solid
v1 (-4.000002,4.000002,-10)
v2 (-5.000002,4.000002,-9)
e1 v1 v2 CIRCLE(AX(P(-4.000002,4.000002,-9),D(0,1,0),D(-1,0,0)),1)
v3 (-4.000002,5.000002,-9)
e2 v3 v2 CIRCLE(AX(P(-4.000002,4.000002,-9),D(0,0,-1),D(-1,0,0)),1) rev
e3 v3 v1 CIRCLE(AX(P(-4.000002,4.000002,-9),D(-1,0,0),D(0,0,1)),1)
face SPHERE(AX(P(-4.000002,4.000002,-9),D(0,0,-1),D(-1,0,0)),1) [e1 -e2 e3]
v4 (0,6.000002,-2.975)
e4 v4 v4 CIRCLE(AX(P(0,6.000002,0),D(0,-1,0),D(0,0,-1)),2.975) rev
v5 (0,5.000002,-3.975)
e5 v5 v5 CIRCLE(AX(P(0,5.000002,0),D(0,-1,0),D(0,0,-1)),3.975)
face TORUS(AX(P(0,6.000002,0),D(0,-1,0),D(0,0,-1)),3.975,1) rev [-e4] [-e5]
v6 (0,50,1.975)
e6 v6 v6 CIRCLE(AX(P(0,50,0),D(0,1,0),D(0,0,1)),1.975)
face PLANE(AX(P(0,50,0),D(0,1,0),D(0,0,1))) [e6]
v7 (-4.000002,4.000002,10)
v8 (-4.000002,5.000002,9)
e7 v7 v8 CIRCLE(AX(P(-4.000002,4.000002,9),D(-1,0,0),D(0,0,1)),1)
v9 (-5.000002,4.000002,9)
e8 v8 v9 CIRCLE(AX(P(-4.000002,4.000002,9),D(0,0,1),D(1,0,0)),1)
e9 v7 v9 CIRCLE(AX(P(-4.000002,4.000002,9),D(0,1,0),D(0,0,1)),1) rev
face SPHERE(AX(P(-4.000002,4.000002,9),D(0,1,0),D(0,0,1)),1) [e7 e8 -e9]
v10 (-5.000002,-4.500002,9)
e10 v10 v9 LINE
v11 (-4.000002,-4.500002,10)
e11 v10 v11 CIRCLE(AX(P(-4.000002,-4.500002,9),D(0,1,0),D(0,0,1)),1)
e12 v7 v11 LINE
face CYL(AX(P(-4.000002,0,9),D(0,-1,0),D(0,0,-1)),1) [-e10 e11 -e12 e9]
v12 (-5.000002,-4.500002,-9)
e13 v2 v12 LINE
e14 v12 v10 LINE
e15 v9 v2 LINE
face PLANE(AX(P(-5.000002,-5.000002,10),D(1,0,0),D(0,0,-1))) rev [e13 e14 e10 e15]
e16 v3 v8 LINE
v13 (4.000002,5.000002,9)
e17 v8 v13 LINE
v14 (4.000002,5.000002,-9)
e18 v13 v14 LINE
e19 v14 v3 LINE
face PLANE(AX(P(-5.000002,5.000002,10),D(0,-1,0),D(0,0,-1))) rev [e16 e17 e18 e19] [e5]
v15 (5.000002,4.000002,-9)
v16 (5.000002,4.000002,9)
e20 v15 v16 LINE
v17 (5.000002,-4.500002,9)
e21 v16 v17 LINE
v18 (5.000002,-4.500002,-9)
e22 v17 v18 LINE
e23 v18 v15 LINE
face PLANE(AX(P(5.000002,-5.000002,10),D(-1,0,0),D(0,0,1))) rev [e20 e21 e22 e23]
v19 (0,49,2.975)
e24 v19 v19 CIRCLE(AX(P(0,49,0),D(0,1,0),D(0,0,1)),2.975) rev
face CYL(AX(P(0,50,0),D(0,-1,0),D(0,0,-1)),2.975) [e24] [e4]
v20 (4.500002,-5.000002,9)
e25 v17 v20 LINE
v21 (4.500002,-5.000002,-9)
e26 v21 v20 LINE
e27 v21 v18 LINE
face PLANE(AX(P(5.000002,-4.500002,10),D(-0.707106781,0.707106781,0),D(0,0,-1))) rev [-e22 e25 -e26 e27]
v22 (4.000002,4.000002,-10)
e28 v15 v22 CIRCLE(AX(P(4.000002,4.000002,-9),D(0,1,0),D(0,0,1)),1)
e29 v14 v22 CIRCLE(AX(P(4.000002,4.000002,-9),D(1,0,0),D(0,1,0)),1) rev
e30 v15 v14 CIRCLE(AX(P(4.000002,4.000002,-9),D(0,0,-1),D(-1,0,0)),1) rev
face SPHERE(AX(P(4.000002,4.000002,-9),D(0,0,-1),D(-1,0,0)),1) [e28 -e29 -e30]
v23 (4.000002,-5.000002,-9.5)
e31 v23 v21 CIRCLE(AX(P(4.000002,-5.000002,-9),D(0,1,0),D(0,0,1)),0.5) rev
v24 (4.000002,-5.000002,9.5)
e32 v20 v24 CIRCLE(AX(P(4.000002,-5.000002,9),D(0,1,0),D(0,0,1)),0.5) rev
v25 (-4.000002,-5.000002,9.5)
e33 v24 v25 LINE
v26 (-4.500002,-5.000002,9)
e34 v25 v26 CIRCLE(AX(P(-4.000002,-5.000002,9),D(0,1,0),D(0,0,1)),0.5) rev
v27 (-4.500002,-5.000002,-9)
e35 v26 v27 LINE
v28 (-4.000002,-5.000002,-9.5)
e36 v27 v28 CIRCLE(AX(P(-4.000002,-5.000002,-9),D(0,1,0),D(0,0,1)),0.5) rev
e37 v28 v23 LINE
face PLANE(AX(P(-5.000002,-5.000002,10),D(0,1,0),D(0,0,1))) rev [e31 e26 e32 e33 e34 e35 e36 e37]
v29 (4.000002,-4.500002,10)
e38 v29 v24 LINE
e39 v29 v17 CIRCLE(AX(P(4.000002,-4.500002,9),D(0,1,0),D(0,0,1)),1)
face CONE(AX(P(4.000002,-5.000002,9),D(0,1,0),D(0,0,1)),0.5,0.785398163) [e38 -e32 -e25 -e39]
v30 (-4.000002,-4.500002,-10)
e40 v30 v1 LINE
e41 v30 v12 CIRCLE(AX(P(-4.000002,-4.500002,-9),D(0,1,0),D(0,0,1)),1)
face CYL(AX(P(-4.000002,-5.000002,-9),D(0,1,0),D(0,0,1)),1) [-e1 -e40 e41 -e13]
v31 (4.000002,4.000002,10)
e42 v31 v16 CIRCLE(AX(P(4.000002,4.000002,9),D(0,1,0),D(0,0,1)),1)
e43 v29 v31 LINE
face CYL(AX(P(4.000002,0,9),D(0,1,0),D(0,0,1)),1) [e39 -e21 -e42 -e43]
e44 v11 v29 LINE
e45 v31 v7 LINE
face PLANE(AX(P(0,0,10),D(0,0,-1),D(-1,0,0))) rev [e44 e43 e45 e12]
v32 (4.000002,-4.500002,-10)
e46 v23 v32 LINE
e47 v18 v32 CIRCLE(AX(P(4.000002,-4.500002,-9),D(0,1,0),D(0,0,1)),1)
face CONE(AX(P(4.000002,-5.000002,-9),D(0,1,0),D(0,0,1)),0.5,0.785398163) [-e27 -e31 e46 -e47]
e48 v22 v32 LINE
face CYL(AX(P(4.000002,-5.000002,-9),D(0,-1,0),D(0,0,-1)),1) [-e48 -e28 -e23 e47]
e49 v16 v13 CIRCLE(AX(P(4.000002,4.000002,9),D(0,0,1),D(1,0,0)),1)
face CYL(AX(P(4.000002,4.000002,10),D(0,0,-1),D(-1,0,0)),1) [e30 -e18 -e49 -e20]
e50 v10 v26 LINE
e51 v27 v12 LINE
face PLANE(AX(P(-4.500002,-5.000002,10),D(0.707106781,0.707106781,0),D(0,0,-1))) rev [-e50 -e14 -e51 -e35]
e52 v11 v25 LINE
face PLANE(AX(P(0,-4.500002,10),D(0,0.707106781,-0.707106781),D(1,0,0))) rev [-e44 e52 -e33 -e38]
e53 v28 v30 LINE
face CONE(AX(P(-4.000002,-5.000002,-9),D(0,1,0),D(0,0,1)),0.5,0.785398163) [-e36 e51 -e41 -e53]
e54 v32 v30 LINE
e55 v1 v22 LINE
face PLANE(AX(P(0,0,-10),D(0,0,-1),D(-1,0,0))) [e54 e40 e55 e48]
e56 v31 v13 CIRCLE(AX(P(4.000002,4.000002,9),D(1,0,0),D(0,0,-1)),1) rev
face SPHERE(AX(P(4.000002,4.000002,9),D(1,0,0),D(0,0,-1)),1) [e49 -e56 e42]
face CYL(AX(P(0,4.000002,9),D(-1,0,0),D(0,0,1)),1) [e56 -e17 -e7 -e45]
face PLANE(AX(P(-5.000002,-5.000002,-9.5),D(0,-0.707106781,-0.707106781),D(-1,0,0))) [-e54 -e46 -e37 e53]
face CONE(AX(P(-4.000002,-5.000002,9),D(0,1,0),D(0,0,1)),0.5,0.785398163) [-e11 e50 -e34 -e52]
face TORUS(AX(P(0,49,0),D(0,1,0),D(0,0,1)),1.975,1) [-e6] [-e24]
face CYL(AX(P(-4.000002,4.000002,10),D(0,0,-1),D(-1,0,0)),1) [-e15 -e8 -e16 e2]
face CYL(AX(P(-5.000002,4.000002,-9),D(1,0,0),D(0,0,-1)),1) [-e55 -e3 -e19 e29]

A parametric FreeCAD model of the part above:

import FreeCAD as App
import Part
import Sketcher

V = App.Vector
Q = App.Units.Quantity


def edges_at(feature, points):
    """Names of the edges that pass closest to the given points."""
    edges = feature.Shape.Edges
    near = lambda p: min(range(len(edges)), key=lambda i: edges[i].distToShape(Part.Vertex(*p))[0])
    return sorted({f"Edge{near(p) + 1}" for p in points})

doc = App.newDocument("Part")
params = doc.addObject("Spreadsheet::Sheet", "Params")
for row, (alias, value) in enumerate([
    ("sketch1_diameter", "5.95 mm"),
    ("pad1_length", "50 mm"),
    ("pad2_length", "20 mm"),
    ("fillet_radius", "1 mm"),
    ("chamfer_size", "0.5 mm"),
], start=1):
    params.set(f"A{row}", alias)
    params.set(f"B{row}", "=" + value)
    params.setAlias(f"B{row}", alias)

body = doc.addObject("PartDesign::Body", "Body")

sketch1 = body.newObject("Sketcher::SketchObject", "Sketch")
sketch1.AttachmentSupport = (doc.getObject("XZ_Plane"), [""])
sketch1.MapMode = "FlatFace"
sketch1.addGeometry(Part.Circle(V(0, 0, 0), V(0, 0, 1), 3), False)
sketch1.addConstraint(Sketcher.Constraint("Coincident", 0, 3, -1, 1))
sketch1.addConstraint(Sketcher.Constraint("Diameter", 0, Q("5.95 mm")))
sketch1.setExpression("Constraints[1]", "Params.sketch1_diameter")
pad1 = body.newObject("PartDesign::Pad", "Pad")
pad1.Profile = sketch1
pad1.setExpression("Length", "Params.pad1_length")
pad1.Reversed = True

sketch2 = body.newObject("Sketcher::SketchObject", "Sketch001")
sketch2.AttachmentSupport = (doc.getObject("XY_Plane"), [""])
sketch2.MapMode = "FlatFace"
sketch2.addGeometry(Part.LineSegment(V(-5, 5, 0), V(-5, -5, 0)), False)
sketch2.addGeometry(Part.LineSegment(V(-5, -5, 0), V(5, -5, 0)), False)
sketch2.addGeometry(Part.LineSegment(V(5, -5, 0), V(5, 5, 0)), False)
sketch2.addGeometry(Part.LineSegment(V(5, 5, 0), V(-5, 5, 0)), False)
sketch2.addConstraint(Sketcher.Constraint("Coincident", 0, 2, 1, 1))
sketch2.addConstraint(Sketcher.Constraint("Coincident", 1, 2, 2, 1))
sketch2.addConstraint(Sketcher.Constraint("Coincident", 2, 2, 3, 1))
sketch2.addConstraint(Sketcher.Constraint("Coincident", 3, 2, 0, 1))
sketch2.addConstraint(Sketcher.Constraint("Vertical", 0))
sketch2.addConstraint(Sketcher.Constraint("Horizontal", 1))
sketch2.addConstraint(Sketcher.Constraint("Vertical", 2))
sketch2.addConstraint(Sketcher.Constraint("Horizontal", 3))
sketch2.addConstraint(Sketcher.Constraint("Symmetric", 0, 2, 2, 2, -1, 1))
sketch2.addConstraint(Sketcher.Constraint("Equal", 3, 0))
sketch2.addConstraint(Sketcher.Constraint("DistanceX", 1, 1, 1, 2, Q("10.000005 mm")))
pad2 = body.newObject("PartDesign::Pad", "Pad001")
pad2.Profile = sketch2
pad2.setExpression("Length", "Params.pad2_length")
pad2.Midplane = True
doc.recompute()

fillet = body.newObject("PartDesign::Fillet", "Fillet")
fillet.Base = (pad2, edges_at(pad2, [
    (0, 50, -2.975),
    (0, 5, -2.975),
    (5, 0, -10),
    (0, 5, -10),
    (5, 5, 0),
    (-5, 0, -10),
    (-5, 5, 0),
    (5, 0, 10),
    (0, 5, 10),
    (-5, 0, 10),
]))
fillet.setExpression("Radius", "Params.fillet_radius")
doc.recompute()

chamfer = body.newObject("PartDesign::Chamfer", "Chamfer")
chamfer.Base = (fillet, edges_at(fillet, [
    (0, -5, 10),
    (0, -5, -10),
    (5, -5, 0),
    (-5, -5, 0),
    (4.707, -5, 9.707),
    (4.707, -5, -9.707),
    (-4.707, -5, -9.707),
    (-4.707, -5, 9.707),
]))
chamfer.setExpression("Size", "Params.chamfer_size")

doc.recompute()
